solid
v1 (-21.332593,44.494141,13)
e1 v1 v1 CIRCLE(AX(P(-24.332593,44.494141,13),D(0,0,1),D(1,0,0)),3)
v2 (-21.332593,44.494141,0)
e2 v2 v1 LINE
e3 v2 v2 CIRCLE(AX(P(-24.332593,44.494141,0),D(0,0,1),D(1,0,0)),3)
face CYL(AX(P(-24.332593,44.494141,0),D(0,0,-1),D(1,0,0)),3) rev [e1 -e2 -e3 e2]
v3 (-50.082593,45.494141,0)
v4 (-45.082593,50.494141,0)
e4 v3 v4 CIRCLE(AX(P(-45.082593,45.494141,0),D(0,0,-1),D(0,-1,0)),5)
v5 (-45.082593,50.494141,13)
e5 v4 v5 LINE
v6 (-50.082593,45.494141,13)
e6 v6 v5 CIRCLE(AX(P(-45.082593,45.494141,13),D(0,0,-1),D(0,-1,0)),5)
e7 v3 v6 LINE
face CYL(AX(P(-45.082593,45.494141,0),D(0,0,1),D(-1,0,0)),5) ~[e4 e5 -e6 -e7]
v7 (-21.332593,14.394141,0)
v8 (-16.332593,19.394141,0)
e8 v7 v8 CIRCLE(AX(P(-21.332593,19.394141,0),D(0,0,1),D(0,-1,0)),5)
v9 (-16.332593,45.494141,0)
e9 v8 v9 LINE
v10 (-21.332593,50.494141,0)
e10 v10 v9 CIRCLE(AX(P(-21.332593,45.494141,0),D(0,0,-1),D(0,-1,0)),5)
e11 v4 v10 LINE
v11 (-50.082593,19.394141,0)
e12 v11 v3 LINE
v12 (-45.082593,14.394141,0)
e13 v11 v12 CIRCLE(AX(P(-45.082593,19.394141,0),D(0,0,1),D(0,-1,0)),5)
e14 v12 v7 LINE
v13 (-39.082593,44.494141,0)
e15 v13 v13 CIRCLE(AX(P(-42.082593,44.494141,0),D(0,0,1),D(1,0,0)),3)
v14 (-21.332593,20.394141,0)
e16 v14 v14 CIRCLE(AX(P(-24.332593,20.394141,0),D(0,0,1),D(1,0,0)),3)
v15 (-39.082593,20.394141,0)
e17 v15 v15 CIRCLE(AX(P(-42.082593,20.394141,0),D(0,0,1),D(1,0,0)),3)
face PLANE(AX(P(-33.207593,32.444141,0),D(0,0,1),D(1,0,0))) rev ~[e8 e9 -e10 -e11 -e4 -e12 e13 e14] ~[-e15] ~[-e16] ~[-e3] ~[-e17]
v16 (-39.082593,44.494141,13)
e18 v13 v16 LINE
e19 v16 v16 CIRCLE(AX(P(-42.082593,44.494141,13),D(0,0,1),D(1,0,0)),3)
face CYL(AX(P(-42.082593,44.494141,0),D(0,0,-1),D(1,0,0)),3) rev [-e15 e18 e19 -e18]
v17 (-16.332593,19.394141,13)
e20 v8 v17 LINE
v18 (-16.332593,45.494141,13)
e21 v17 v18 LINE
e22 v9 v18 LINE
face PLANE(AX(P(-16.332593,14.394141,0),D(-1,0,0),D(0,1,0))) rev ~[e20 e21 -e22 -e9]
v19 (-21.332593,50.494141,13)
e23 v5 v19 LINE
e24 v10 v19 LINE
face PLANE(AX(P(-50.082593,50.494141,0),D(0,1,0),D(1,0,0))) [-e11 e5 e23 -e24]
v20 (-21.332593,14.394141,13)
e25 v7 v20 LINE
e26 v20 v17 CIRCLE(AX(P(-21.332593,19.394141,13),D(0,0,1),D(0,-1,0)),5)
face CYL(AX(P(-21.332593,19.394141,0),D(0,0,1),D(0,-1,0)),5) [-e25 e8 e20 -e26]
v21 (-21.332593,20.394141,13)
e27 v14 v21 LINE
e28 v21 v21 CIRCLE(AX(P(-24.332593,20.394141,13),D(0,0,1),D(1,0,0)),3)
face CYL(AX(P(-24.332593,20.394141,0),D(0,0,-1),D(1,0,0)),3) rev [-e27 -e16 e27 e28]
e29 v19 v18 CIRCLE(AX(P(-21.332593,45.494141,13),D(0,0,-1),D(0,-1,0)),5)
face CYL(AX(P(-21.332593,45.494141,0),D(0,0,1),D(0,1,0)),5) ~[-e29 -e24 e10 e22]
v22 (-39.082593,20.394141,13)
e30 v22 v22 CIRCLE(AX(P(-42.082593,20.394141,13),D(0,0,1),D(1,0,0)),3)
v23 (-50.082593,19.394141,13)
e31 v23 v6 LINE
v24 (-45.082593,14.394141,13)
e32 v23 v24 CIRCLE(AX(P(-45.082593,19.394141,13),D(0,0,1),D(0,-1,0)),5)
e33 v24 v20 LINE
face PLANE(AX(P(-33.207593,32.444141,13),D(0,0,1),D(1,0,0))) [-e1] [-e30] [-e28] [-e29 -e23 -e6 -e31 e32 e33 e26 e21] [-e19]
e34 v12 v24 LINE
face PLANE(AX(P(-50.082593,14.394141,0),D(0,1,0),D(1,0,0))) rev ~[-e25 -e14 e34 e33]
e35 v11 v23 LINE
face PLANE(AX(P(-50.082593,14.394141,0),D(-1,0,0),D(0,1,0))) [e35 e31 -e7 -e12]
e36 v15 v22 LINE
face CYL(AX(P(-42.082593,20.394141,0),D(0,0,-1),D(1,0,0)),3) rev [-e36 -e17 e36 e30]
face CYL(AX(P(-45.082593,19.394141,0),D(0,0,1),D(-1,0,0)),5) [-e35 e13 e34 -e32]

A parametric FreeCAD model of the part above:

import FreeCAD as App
import Part
import Sketcher
from FreeCAD import Vector
Q = App.Units.Quantity


def edges_at(feature, points):
    """Names of the edges that pass closest to the given points."""
    edges = feature.Shape.Edges
    near = lambda p: min(range(len(edges)), key=lambda i: edges[i].distToShape(Part.Vertex(*p))[0])
    return sorted({f"Edge{near(p) + 1}" for p in points})


def add_polygon(sketch, points):
    """Adds a closed chain of lines whose ends are joined by coincident constraints."""
    first, n = sketch.GeometryCount, len(points)
    for a, b in zip(points, points[1:] + points[:1]):
        sketch.addGeometry(Part.LineSegment(App.Vector(*a, 0), App.Vector(*b, 0)), False)
    for i in range(n):
        sketch.addConstraint(Sketcher.Constraint("Coincident", first + i, 2, first + (i + 1) % n, 1))

doc = App.newDocument("Part")
body = doc.addObject("PartDesign::Body", "Body")

# Sketch on XY plane
sketch1 = body.newObject("Sketcher::SketchObject", "Sketch")
sketch1.AttachmentSupport = (doc.getObject("XY_Plane"), [""])
sketch1.MapMode = "FlatFace"
add_polygon(sketch1, [(-50.1, 50.5), (-50.1, 14.4), (-16.3, 14.4), (-16.3, 50.5)])  # lines 0-3
sketch1.addGeometry(Part.Circle(Vector(-42.1, 20.4, 0), Vector(0, 0, 1), 3), False)  # 4
sketch1.addGeometry(Part.Circle(Vector(-24.3, 20.4, 0), Vector(0, 0, 1), 3), False)  # 5
sketch1.addGeometry(Part.Circle(Vector(-42.1, 44.5, 0), Vector(0, 0, 1), 3), False)  # 6
sketch1.addGeometry(Part.Circle(Vector(-24.3, 44.5, 0), Vector(0, 0, 1), 3), False)  # 7
sketch1.addConstraint([
    Sketcher.Constraint("Vertical", 0),
    Sketcher.Constraint("Horizontal", 1),
    Sketcher.Constraint("Vertical", 2),
    Sketcher.Constraint("Horizontal", 3),
    Sketcher.Constraint("Equal", 4, 5),
    Sketcher.Constraint("Equal", 5, 6),
    Sketcher.Constraint("Equal", 6, 7),
    Sketcher.Constraint("Horizontal", 4, 3, 5, 3),
    Sketcher.Constraint("Horizontal", 6, 3, 7, 3),
    Sketcher.Constraint("Vertical", 4, 3, 6, 3),
    Sketcher.Constraint("Vertical", 5, 3, 7, 3),
    Sketcher.Constraint("Diameter", 4, Q("6 mm")),
    Sketcher.Constraint("DistanceY", 0, 2, 0, 1, Q("36.1 mm")),
    Sketcher.Constraint("DistanceX", 0, 2, 4, 3, Q("8 mm")),
    Sketcher.Constraint("DistanceY", 0, 2, 4, 3, Q("6 mm")),
    Sketcher.Constraint("DistanceX", 5, 3, 1, 2, Q("8 mm")),
    Sketcher.Constraint("DistanceY", 7, 3, 2, 2, Q("6 mm")),
    Sketcher.Constraint("DistanceX", 1, 1, 1, 2, Q("33.75 mm")),
    Sketcher.Constraint("DistanceY", -1, 1, 4, 3, Q("20.394141 mm")),
    Sketcher.Constraint("DistanceX", 4, 3, -1, 1, Q("42.082593 mm")),
])
pad1 = body.newObject("PartDesign::Pad", "Pad")
pad1.Profile = sketch1
pad1.Length = 13
doc.recompute()

fillet = body.newObject("PartDesign::Fillet", "Fillet")
fillet.Base = (pad1, edges_at(pad1, [
    (-50.083, 14.394, 6.5),
    (-16.333, 14.394, 6.5),
    (-50.083, 50.494, 6.5),
    (-16.333, 50.494, 6.5),
]))
fillet.Radius = 5

doc.recompute()
